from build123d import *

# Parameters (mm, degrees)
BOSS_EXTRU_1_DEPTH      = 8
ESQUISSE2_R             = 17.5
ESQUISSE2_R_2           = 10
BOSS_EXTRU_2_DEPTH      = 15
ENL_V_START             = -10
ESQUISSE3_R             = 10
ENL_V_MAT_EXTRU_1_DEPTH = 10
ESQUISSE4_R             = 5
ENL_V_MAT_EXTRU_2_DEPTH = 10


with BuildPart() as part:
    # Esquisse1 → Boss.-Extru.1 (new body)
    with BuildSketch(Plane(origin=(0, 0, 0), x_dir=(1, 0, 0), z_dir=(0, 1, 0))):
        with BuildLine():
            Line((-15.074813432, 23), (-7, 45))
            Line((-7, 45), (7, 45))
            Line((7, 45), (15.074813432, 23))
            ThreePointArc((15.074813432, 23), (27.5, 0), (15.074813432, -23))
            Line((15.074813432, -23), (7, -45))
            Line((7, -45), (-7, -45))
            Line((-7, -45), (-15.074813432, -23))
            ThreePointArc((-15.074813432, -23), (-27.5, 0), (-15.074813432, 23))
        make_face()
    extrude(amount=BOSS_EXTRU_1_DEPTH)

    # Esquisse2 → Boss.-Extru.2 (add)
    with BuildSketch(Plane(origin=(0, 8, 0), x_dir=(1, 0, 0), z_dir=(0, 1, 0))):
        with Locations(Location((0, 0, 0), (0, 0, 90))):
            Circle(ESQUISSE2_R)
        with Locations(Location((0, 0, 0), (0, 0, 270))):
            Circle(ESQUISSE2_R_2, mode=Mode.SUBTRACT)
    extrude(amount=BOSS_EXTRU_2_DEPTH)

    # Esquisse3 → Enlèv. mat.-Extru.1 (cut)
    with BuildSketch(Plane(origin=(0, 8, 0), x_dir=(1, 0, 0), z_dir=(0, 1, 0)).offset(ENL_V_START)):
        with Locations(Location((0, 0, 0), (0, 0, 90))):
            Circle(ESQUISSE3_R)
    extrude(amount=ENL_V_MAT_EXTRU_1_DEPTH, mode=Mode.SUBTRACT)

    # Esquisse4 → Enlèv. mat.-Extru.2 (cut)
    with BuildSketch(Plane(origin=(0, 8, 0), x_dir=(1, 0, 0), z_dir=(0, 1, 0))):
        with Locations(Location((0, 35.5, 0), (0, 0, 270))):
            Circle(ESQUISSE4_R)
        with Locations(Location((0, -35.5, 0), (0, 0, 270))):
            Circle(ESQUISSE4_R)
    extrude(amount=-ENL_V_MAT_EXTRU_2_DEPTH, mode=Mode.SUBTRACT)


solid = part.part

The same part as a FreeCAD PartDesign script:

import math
import FreeCAD as App
import Part
import Sketcher

doc = App.newDocument("Part")
params = doc.addObject("Spreadsheet::Sheet", "Params")
for row, (alias, value) in enumerate([
    ("sketch1_radius", "27.5 mm"),
    ("sketch1_width", "14 mm"),
    ("pad1_length", "8 mm"),
    ("sketch2_diameter", "35 mm"),
    ("sketch2_diameter2", "20 mm"),
    ("pad2_length", "15 mm"),
    ("sketch3_diameter", "20 mm"),
    ("pocket1_length", "10 mm"),
    ("sketch4_diameter", "10 mm"),
    ("pocket2_length", "10 mm"),
], start=1):
    params.set(f"A{row}", alias)
    params.set(f"B{row}", "=" + value)
    params.setAlias(f"B{row}", alias)

body = doc.addObject("PartDesign::Body", "Body")

# Sketch on XZ plane
sketch1 = body.newObject("Sketcher::SketchObject", "Sketch")
sketch1.AttachmentSupport = (doc.getObject("XZ_Plane"), [""])
sketch1.MapMode = "FlatFace"
sketch1.addGeometry(Part.LineSegment(App.Vector(-7, -45, 0), App.Vector(-15, -23, 0)), False)
sketch1.addGeometry(Part.ArcOfCircle(Part.Circle(App.Vector(0, 0, 0), App.Vector(0, 0, 1), 28), math.radians(123), math.radians(237)), False)
sketch1.addGeometry(Part.LineSegment(App.Vector(-15, 23, 0), App.Vector(-7, 45, 0)), False)
sketch1.addGeometry(Part.LineSegment(App.Vector(-7, 45, 0), App.Vector(7, 45, 0)), False)
sketch1.addGeometry(Part.LineSegment(App.Vector(7, 45, 0), App.Vector(15, 23, 0)), False)
sketch1.addGeometry(Part.ArcOfCircle(Part.Circle(App.Vector(0, 0, 0), App.Vector(0, 0, 1), 28), math.radians(-57), math.radians(57)), False)
sketch1.addGeometry(Part.LineSegment(App.Vector(15, -23, 0), App.Vector(7, -45, 0)), False)
sketch1.addGeometry(Part.LineSegment(App.Vector(7, -45, 0), App.Vector(-7, -45, 0)), False)
sketch1.addConstraint(Sketcher.Constraint("Coincident", 0, 2, 1, 2))
sketch1.addConstraint(Sketcher.Constraint("Coincident", 1, 1, 2, 1))
sketch1.addConstraint(Sketcher.Constraint("Coincident", 2, 2, 3, 1))
sketch1.addConstraint(Sketcher.Constraint("Coincident", 3, 2, 4, 1))
sketch1.addConstraint(Sketcher.Constraint("Coincident", 4, 2, 5, 2))
sketch1.addConstraint(Sketcher.Constraint("Coincident", 5, 1, 6, 1))
sketch1.addConstraint(Sketcher.Constraint("Coincident", 6, 2, 7, 1))
sketch1.addConstraint(Sketcher.Constraint("Coincident", 7, 2, 0, 1))
sketch1.addConstraint(Sketcher.Constraint("Horizontal", 3))
sketch1.addConstraint(Sketcher.Constraint("Horizontal", 7))
sketch1.addConstraint(Sketcher.Constraint("Coincident", 1, 3, -1, 1))
sketch1.addConstraint(Sketcher.Constraint("Coincident", 5, 3, -1, 1))
sketch1.addConstraint(Sketcher.Constraint("Equal", 1, 5))
sketch1.addConstraint(Sketcher.Constraint("Symmetric", 2, 2, 6, 2, -1, 1))
sketch1.addConstraint(Sketcher.Constraint("Parallel", 0, 4))
sketch1.addConstraint(Sketcher.Constraint("Parallel", 2, 6))
sketch1.addConstraint(Sketcher.Constraint("Horizontal", 1, 1, 4, 2))
sketch1.addConstraint(Sketcher.Constraint("Horizontal", 0, 2, 5, 1))
sketch1.addConstraint(Sketcher.Constraint("Vertical", 3, 2, 6, 2))
sketch1.addConstraint(Sketcher.Constraint("Radius", 1, 27.5))
sketch1.addConstraint(Sketcher.Constraint("DistanceX", 3, 1, 3, 2, 14.0))
sketch1.addConstraint(Sketcher.Constraint("DistanceY", 0, 2, -1, 1, 23.0))
sketch1.addConstraint(Sketcher.Constraint("DistanceY", -1, 1, 2, 2, 45.0))
sketch1.setExpression("Constraints[19]", "Params.sketch1_radius")
sketch1.setExpression("Constraints[20]", "Params.sketch1_width")
pad1 = body.newObject("PartDesign::Pad", "Pad")
pad1.Profile = sketch1
pad1.setExpression("Length", "Params.pad1_length")
pad1.Reversed = True

# Sketch on XZ plane
sketch2 = body.newObject("Sketcher::SketchObject", "Sketch001")
sketch2.AttachmentSupport = (doc.getObject("XZ_Plane"), [""])
sketch2.MapMode = "FlatFace"
sketch2.AttachmentOffset = App.Placement(App.Vector(0, 0, -8), App.Rotation())
sketch2.addGeometry(Part.Circle(App.Vector(0, 0, 0), App.Vector(0, 0, 1), 18), False)
sketch2.addGeometry(Part.Circle(App.Vector(0, 0, 0), App.Vector(0, 0, 1), 10), False)
sketch2.addConstraint(Sketcher.Constraint("Coincident", 0, 3, -1, 1))
sketch2.addConstraint(Sketcher.Constraint("Coincident", 1, 3, -1, 1))
sketch2.addConstraint(Sketcher.Constraint("Diameter", 0, 35.0))
sketch2.addConstraint(Sketcher.Constraint("Diameter", 1, 20.0))
sketch2.setExpression("Constraints[2]", "Params.sketch2_diameter")
sketch2.setExpression("Constraints[3]", "Params.sketch2_diameter2")
pad2 = body.newObject("PartDesign::Pad", "Pad001")
pad2.Profile = sketch2
pad2.setExpression("Length", "Params.pad2_length")
pad2.Reversed = True

# Sketch on XZ plane
sketch3 = body.newObject("Sketcher::SketchObject", "Sketch002")
sketch3.AttachmentSupport = (doc.getObject("XZ_Plane"), [""])
sketch3.MapMode = "FlatFace"
sketch3.AttachmentOffset = App.Placement(App.Vector(0, 0, 2), App.Rotation())
sketch3.addGeometry(Part.Circle(App.Vector(0, 0, 0), App.Vector(0, 0, 1), 10), False)
sketch3.addConstraint(Sketcher.Constraint("Coincident", 0, 3, -1, 1))
sketch3.addConstraint(Sketcher.Constraint("Diameter", 0, 20.0))
sketch3.setExpression("Constraints[1]", "Params.sketch3_diameter")
pocket1 = body.newObject("PartDesign::Pocket", "Pocket")
pocket1.Profile = sketch3
pocket1.setExpression("Length", "Params.pocket1_length")

# Sketch on XZ plane
sketch4 = body.newObject("Sketcher::SketchObject", "Sketch003")
sketch4.AttachmentSupport = (doc.getObject("XZ_Plane"), [""])
sketch4.MapMode = "FlatFace"
sketch4.AttachmentOffset = App.Placement(App.Vector(0, 0, -8), App.Rotation())
sketch4.addGeometry(Part.Circle(App.Vector(0, -36, 0), App.Vector(0, 0, 1), 5), False)
sketch4.addGeometry(Part.Circle(App.Vector(0, 36, 0), App.Vector(0, 0, 1), 5), False)
sketch4.addConstraint(Sketcher.Constraint("Equal", 0, 1))
sketch4.addConstraint(Sketcher.Constraint("Symmetric", 0, 3, 1, 3, -1, 1))
sketch4.addConstraint(Sketcher.Constraint("PointOnObject", 0, 3, -2))
sketch4.addConstraint(Sketcher.Constraint("Diameter", 0, 10.0))
sketch4.addConstraint(Sketcher.Constraint("DistanceY", 0, 3, 1, 3, 71.0))
sketch4.setExpression("Constraints[3]", "Params.sketch4_diameter")
pocket2 = body.newObject("PartDesign::Pocket", "Pocket001")
pocket2.Profile = sketch4
pocket2.setExpression("Length", "Params.pocket2_length")
pocket2.Reversed = True

doc.recompute()
